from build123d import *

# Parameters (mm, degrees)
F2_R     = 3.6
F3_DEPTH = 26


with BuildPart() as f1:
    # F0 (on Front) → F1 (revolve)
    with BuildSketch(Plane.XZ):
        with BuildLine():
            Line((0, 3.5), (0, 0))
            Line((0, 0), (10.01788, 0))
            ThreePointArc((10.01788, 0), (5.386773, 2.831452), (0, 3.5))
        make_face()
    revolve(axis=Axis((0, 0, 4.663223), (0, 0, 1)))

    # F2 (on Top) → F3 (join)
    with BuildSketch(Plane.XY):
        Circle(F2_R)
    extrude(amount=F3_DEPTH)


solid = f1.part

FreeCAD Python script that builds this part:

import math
import FreeCAD as App
import Part
import Sketcher
from FreeCAD import Vector

doc = App.newDocument("Part")
body = doc.addObject("PartDesign::Body", "Body")

# Sketch on XZ plane
sketch1 = body.newObject("Sketcher::SketchObject", "Sketch")
sketch1.AttachmentSupport = (doc.getObject("XZ_Plane"), [""])
sketch1.MapMode = "FlatFace"
sketch1.addGeometry([
    Part.LineSegment(Vector(0, 3.5, 0), Vector(0, 0, 0)),
    Part.LineSegment(Vector(0, 0, 0), Vector(10, 0, 0)),
    Part.ArcOfCircle(Part.Circle(Vector(1.1, -9.3, 0), Vector(0, 0, 1), 12.9), math.radians(46), math.radians(95)),
], False)
sketch1.addConstraint([
    Sketcher.Constraint("Coincident", 0, 2, 1, 1),
    Sketcher.Constraint("Coincident", 1, 2, 2, 1),
    Sketcher.Constraint("Coincident", 2, 2, 0, 1),
    Sketcher.Constraint("Vertical", 0),
    Sketcher.Constraint("Horizontal", 1),
    Sketcher.Constraint("Coincident", 0, 2, -1, 1),
    Sketcher.Constraint("DistanceY", 0, 2, 0, 1, 3.5),
    Sketcher.Constraint("Radius", 2, 12.860263),
    Sketcher.Constraint("DistanceX", 1, 1, 1, 2, 10.01788),
])
revolution = body.newObject("PartDesign::Revolution", "Revolution")
revolution.Profile = sketch1
revolution.ReferenceAxis = (sketch1, ["V_Axis"])
revolution.Angle = 360

# Sketch on XY plane
sketch2 = body.newObject("Sketcher::SketchObject", "Sketch001")
sketch2.AttachmentSupport = (doc.getObject("XY_Plane"), [""])
sketch2.MapMode = "FlatFace"
sketch2.addGeometry(Part.Circle(Vector(0, 0, 0), Vector(0, 0, 1), 3.6), False)
sketch2.addConstraint([
    Sketcher.Constraint("Coincident", 0, 3, -1, 1),
    Sketcher.Constraint("Diameter", 0, 7.2),
])
pad1 = body.newObject("PartDesign::Pad", "Pad")
pad1.Profile = sketch2
pad1.Length = 26

doc.recompute()
